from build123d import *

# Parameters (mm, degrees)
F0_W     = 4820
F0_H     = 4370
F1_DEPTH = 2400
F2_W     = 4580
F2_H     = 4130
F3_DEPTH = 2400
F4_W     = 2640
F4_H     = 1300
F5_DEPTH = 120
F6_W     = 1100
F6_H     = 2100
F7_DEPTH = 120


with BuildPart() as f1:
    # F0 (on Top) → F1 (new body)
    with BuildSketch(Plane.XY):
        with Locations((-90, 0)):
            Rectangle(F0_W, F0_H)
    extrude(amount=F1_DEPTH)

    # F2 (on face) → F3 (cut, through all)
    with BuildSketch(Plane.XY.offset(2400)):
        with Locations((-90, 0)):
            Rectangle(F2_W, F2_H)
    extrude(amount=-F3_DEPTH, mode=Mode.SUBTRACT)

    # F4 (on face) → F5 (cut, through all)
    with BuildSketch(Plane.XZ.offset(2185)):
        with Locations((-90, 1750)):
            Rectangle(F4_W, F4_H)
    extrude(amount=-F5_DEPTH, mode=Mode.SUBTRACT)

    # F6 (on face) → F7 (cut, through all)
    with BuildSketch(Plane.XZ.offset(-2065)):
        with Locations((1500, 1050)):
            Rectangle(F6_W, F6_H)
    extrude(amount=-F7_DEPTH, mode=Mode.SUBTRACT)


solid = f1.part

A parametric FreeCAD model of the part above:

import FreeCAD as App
import Part
import Sketcher
from FreeCAD import Vector
Q = App.Units.Quantity

doc = App.newDocument("Part")
params = doc.addObject("Spreadsheet::Sheet", "Params")
for row, (alias, value) in enumerate([
    ("sketch1_width", "4820 mm"),
    ("sketch1_height", "4370 mm"),
    ("pad1_length", "2400 mm"),
    ("sketch2_width", "4580 mm"),
    ("sketch2_height", "4130 mm"),
    ("sketch3_width", "2640 mm"),
    ("sketch3_height", "1300 mm"),
    ("pocket2_length", "120 mm"),
    ("sketch4_width", "1100 mm"),
    ("sketch4_height", "2100 mm"),
], start=1):
    params.set(f"A{row}", alias)
    params.set(f"B{row}", "=" + value)
    params.setAlias(f"B{row}", alias)

body = doc.addObject("PartDesign::Body", "Body")

# Sketch on XY plane
sketch1 = doc.addObject("Sketcher::SketchObject", "Sketch")
body.addObject(sketch1)
sketch1.AttachmentSupport = (doc.XY_Plane, [""])
sketch1.MapMode = "FlatFace"
sketch1.addGeometry([
    Part.LineSegment(Vector(-2500, 2185, 0), Vector(-2500, -2185, 0)),
    Part.LineSegment(Vector(-2500, -2185, 0), Vector(2320, -2185, 0)),
    Part.LineSegment(Vector(2320, -2185, 0), Vector(2320, 2185, 0)),
    Part.LineSegment(Vector(2320, 2185, 0), Vector(-2500, 2185, 0)),
], False)
sketch1.addConstraint([
    Sketcher.Constraint("Coincident", 0, 2, 1, 1),
    Sketcher.Constraint("Coincident", 1, 2, 2, 1),
    Sketcher.Constraint("Coincident", 2, 2, 3, 1),
    Sketcher.Constraint("Coincident", 3, 2, 0, 1),
    Sketcher.Constraint("Vertical", 0),
    Sketcher.Constraint("Horizontal", 1),
    Sketcher.Constraint("Vertical", 2),
    Sketcher.Constraint("Horizontal", 3),
    Sketcher.Constraint("DistanceX", 1, 1, 1, 2, Q("4820 mm")),
    Sketcher.Constraint("DistanceY", 0, 2, 0, 1, Q("4370 mm")),
    Sketcher.Constraint("DistanceX", 0, 2, -1, 1, Q("2500 mm")),
    Sketcher.Constraint("DistanceY", 0, 2, -1, 1, Q("2185 mm")),
])
sketch1.setExpression("Constraints[8]", "Params.sketch1_width")
sketch1.setExpression("Constraints[9]", "Params.sketch1_height")
pad1 = doc.addObject("PartDesign::Pad", "Pad")
body.addObject(pad1)
pad1.Profile = sketch1
pad1.setExpression("Length", "Params.pad1_length")

# Sketch on XY plane
sketch2 = doc.addObject("Sketcher::SketchObject", "Sketch001")
body.addObject(sketch2)
sketch2.AttachmentSupport = (doc.XY_Plane, [""])
sketch2.MapMode = "FlatFace"
sketch2.AttachmentOffset = App.Placement(Vector(0, 0, 2400), App.Rotation())
sketch2.addGeometry([
    Part.LineSegment(Vector(-2380, 2065, 0), Vector(-2380, -2065, 0)),
    Part.LineSegment(Vector(-2380, -2065, 0), Vector(2200, -2065, 0)),
    Part.LineSegment(Vector(2200, -2065, 0), Vector(2200, 2065, 0)),
    Part.LineSegment(Vector(2200, 2065, 0), Vector(-2380, 2065, 0)),
], False)
sketch2.addConstraint([
    Sketcher.Constraint("Coincident", 0, 2, 1, 1),
    Sketcher.Constraint("Coincident", 1, 2, 2, 1),
    Sketcher.Constraint("Coincident", 2, 2, 3, 1),
    Sketcher.Constraint("Coincident", 3, 2, 0, 1),
    Sketcher.Constraint("Vertical", 0),
    Sketcher.Constraint("Horizontal", 1),
    Sketcher.Constraint("Vertical", 2),
    Sketcher.Constraint("Horizontal", 3),
    Sketcher.Constraint("DistanceX", 1, 1, 1, 2, Q("4580 mm")),
    Sketcher.Constraint("DistanceY", 0, 2, 0, 1, Q("4130 mm")),
    Sketcher.Constraint("DistanceX", 0, 2, -1, 1, Q("2380 mm")),
    Sketcher.Constraint("DistanceY", 0, 2, -1, 1, Q("2065 mm")),
])
sketch2.setExpression("Constraints[8]", "Params.sketch2_width")
sketch2.setExpression("Constraints[9]", "Params.sketch2_height")
pocket1 = doc.addObject("PartDesign::Pocket", "Pocket")
body.addObject(pocket1)
pocket1.Profile = sketch2
pocket1.Type = "ThroughAll"

# Sketch on XZ plane
sketch3 = doc.addObject("Sketcher::SketchObject", "Sketch002")
body.addObject(sketch3)
sketch3.AttachmentSupport = (doc.XZ_Plane, [""])
sketch3.MapMode = "FlatFace"
sketch3.AttachmentOffset = App.Placement(Vector(0, 0, 2185), App.Rotation())
sketch3.addGeometry([
    Part.LineSegment(Vector(-1410, 2400, 0), Vector(-1410, 1100, 0)),
    Part.LineSegment(Vector(-1410, 1100, 0), Vector(1230, 1100, 0)),
    Part.LineSegment(Vector(1230, 1100, 0), Vector(1230, 2400, 0)),
    Part.LineSegment(Vector(1230, 2400, 0), Vector(-1410, 2400, 0)),
], False)
sketch3.addConstraint([
    Sketcher.Constraint("Coincident", 0, 2, 1, 1),
    Sketcher.Constraint("Coincident", 1, 2, 2, 1),
    Sketcher.Constraint("Coincident", 2, 2, 3, 1),
    Sketcher.Constraint("Coincident", 3, 2, 0, 1),
    Sketcher.Constraint("Vertical", 0),
    Sketcher.Constraint("Horizontal", 1),
    Sketcher.Constraint("Vertical", 2),
    Sketcher.Constraint("Horizontal", 3),
    Sketcher.Constraint("DistanceX", 1, 1, 1, 2, Q("2640 mm")),
    Sketcher.Constraint("DistanceY", 0, 2, 0, 1, Q("1300 mm")),
    Sketcher.Constraint("DistanceX", 0, 2, -1, 1, Q("1410 mm")),
    Sketcher.Constraint("DistanceY", -1, 1, 0, 2, Q("1100 mm")),
])
sketch3.setExpression("Constraints[8]", "Params.sketch3_width")
sketch3.setExpression("Constraints[9]", "Params.sketch3_height")
pocket2 = doc.addObject("PartDesign::Pocket", "Pocket001")
body.addObject(pocket2)
pocket2.Profile = sketch3
pocket2.setExpression("Length", "Params.pocket2_length")

# Sketch on XZ plane
sketch4 = doc.addObject("Sketcher::SketchObject", "Sketch003")
body.addObject(sketch4)
sketch4.AttachmentSupport = (doc.XZ_Plane, [""])
sketch4.MapMode = "FlatFace"
sketch4.AttachmentOffset = App.Placement(Vector(0, 0, -2065), App.Rotation())
sketch4.addGeometry([
    Part.LineSegment(Vector(950, 2100, 0), Vector(950, 0, 0)),
    Part.LineSegment(Vector(950, 0, 0), Vector(2050, 0, 0)),
    Part.LineSegment(Vector(2050, 0, 0), Vector(2050, 2100, 0)),
    Part.LineSegment(Vector(2050, 2100, 0), Vector(950, 2100, 0)),
], False)
sketch4.addConstraint([
    Sketcher.Constraint("Coincident", 0, 2, 1, 1),
    Sketcher.Constraint("Coincident", 1, 2, 2, 1),
    Sketcher.Constraint("Coincident", 2, 2, 3, 1),
    Sketcher.Constraint("Coincident", 3, 2, 0, 1),
    Sketcher.Constraint("Vertical", 0),
    Sketcher.Constraint("Horizontal", 1),
    Sketcher.Constraint("Vertical", 2),
    Sketcher.Constraint("Horizontal", 3),
    Sketcher.Constraint("PointOnObject", 0, 2, -1),
    Sketcher.Constraint("DistanceX", 1, 1, 1, 2, Q("1100 mm")),
    Sketcher.Constraint("DistanceY", 0, 2, 0, 1, Q("2100 mm")),
    Sketcher.Constraint("DistanceX", -1, 1, 0, 2, Q("950 mm")),
])
sketch4.setExpression("Constraints[9]", "Params.sketch4_width")
sketch4.setExpression("Constraints[10]", "Params.sketch4_height")
pocket3 = doc.addObject("PartDesign::Pocket", "Pocket002")
body.addObject(pocket3)
pocket3.Profile = sketch4
pocket3.Type = "ThroughAll"

doc.recompute()
